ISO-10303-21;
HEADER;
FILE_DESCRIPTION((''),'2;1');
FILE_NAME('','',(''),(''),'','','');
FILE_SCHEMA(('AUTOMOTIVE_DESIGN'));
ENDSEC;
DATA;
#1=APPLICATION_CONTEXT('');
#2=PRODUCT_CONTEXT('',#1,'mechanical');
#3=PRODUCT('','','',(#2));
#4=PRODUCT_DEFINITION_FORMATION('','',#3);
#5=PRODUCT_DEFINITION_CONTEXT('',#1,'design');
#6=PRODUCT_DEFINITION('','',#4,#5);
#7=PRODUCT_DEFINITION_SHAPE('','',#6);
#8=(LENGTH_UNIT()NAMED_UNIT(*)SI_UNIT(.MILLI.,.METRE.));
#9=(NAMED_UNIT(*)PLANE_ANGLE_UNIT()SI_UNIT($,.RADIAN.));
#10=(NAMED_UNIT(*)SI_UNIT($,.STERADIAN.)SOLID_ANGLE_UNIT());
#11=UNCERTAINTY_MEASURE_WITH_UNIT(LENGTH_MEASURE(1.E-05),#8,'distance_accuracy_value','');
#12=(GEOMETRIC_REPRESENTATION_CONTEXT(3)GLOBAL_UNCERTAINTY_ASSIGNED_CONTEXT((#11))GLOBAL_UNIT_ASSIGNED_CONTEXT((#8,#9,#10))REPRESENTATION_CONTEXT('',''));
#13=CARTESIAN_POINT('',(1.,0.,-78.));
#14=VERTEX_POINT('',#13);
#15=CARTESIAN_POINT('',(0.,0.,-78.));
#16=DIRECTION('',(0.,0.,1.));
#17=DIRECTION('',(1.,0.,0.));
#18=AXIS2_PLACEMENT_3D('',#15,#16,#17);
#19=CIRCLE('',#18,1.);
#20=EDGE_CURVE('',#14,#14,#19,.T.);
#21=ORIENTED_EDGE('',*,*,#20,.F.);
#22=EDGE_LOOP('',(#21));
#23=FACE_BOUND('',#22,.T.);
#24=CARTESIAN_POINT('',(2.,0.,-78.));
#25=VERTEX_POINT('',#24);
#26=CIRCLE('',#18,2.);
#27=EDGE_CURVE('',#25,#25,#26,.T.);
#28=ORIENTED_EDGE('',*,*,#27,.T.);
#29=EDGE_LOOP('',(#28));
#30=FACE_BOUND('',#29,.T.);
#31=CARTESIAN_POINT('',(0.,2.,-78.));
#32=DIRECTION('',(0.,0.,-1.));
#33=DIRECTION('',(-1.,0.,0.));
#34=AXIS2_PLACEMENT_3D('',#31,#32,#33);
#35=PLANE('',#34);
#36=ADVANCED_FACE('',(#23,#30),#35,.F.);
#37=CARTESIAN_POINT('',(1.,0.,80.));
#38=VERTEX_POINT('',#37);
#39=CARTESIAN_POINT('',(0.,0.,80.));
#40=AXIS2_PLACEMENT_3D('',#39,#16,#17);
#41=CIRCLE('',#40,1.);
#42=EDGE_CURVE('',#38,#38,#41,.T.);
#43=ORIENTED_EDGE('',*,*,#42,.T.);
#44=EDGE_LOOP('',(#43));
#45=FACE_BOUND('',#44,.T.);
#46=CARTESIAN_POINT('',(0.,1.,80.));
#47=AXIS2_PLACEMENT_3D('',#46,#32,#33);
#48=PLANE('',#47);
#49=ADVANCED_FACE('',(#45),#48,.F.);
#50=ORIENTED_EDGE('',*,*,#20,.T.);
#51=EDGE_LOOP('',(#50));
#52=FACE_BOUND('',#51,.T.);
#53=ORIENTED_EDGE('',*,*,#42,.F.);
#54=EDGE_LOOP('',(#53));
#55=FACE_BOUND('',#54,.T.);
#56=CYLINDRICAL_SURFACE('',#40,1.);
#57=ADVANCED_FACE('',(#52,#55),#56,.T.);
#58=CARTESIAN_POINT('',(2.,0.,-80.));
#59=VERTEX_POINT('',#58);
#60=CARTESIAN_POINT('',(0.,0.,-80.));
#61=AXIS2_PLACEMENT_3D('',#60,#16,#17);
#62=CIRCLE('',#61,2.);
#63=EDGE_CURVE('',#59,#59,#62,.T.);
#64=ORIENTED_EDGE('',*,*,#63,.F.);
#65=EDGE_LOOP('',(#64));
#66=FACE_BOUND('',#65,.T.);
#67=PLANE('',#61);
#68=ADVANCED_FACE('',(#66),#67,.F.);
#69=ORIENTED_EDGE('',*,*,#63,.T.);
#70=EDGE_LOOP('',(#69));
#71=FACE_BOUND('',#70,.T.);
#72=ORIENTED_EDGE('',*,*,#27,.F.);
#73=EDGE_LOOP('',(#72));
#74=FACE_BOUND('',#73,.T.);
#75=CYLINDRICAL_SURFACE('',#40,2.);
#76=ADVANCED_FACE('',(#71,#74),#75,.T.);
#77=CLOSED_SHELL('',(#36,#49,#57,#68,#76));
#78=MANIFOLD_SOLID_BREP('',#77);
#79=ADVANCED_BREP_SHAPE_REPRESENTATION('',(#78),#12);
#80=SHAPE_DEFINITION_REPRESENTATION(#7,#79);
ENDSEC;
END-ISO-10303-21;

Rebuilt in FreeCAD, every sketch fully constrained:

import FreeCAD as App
import Part
import Sketcher


def add_polygon(sketch, points):
    """Adds a closed chain of lines whose ends are joined by coincident constraints."""
    first, n = sketch.GeometryCount, len(points)
    for a, b in zip(points, points[1:] + points[:1]):
        sketch.addGeometry(Part.LineSegment(App.Vector(*a, 0), App.Vector(*b, 0)), False)
    for i in range(n):
        sketch.addConstraint(Sketcher.Constraint("Coincident", first + i, 2, first + (i + 1) % n, 1))

doc = App.newDocument("Part")
body = doc.addObject("PartDesign::Body", "Body")

sketch1 = body.newObject("Sketcher::SketchObject", "Sketch")
sketch1.AttachmentSupport = (doc.getObject("YZ_Plane"), [""])
sketch1.MapMode = "FlatFace"
add_polygon(sketch1, [(0, -80), (2, -80), (2, -78), (1, -78), (1, 80), (0, 80)])
sketch1.addConstraint([
    Sketcher.Constraint("Horizontal", 0),
    Sketcher.Constraint("Vertical", 1),
    Sketcher.Constraint("Horizontal", 2),
    Sketcher.Constraint("Vertical", 3),
    Sketcher.Constraint("Horizontal", 4),
    Sketcher.Constraint("Vertical", 5),
    Sketcher.Constraint("Symmetric", 4, 2, 5, 2, -1, 1),
    Sketcher.Constraint("Equal", 2, 4),
    Sketcher.Constraint("Equal", 0, 1),
    Sketcher.Constraint("DistanceX", 0, 1, 0, 2, 2.0),
    Sketcher.Constraint("DistanceY", 3, 1, 3, 2, 158.0),
])
revolution = body.newObject("PartDesign::Revolution", "Revolution")
revolution.Profile = sketch1
revolution.ReferenceAxis = (sketch1, ["V_Axis"])
revolution.Angle = 360

doc.recompute()
